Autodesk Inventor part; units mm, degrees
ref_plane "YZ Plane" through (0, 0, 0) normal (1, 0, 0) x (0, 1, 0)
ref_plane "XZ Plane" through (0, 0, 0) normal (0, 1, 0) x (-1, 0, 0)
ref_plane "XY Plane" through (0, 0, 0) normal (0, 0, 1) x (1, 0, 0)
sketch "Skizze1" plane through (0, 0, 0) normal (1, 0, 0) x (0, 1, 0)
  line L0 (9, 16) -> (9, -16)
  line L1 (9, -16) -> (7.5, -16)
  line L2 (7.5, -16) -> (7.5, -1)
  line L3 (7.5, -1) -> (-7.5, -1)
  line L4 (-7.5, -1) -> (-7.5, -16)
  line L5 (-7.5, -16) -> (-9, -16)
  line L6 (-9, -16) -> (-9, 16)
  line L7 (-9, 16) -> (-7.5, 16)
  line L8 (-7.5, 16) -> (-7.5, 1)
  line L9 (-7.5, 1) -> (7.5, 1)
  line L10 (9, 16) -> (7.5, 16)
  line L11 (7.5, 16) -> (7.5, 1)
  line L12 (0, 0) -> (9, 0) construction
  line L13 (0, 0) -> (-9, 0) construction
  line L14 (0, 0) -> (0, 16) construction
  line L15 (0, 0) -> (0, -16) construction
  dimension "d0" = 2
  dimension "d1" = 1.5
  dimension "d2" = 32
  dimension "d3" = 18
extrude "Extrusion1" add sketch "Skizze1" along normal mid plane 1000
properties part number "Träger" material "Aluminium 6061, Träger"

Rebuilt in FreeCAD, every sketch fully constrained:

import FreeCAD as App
import Part
import Sketcher
from FreeCAD import Vector
Q = App.Units.Quantity


def add_polygon(sketch, points):
    """Adds a closed chain of lines whose ends are joined by coincident constraints."""
    first, n = sketch.GeometryCount, len(points)
    for a, b in zip(points, points[1:] + points[:1]):
        sketch.addGeometry(Part.LineSegment(App.Vector(*a, 0), App.Vector(*b, 0)), False)
    for i in range(n):
        sketch.addConstraint(Sketcher.Constraint("Coincident", first + i, 2, first + (i + 1) % n, 1))

doc = App.newDocument("Part")
params = doc.addObject("Spreadsheet::Sheet", "Params")
for row, (alias, value) in enumerate([
    ("sketch1_height", "32 mm"),
    ("sketch1_width", "1.5 mm"),
    ("pad1_length", "1000 mm"),
], start=1):
    params.set(f"A{row}", alias)
    params.set(f"B{row}", "=" + value)
    params.setAlias(f"B{row}", alias)

body = doc.addObject("PartDesign::Body", "Body")

# Sketch on YZ plane
sketch1 = body.newObject("Sketcher::SketchObject", "Sketch")
sketch1.AttachmentSupport = (doc.getObject("YZ_Plane"), [""])
sketch1.MapMode = "FlatFace"
add_polygon(sketch1, [(9, -16), (9, 16), (7.5, 16), (7.5, 1), (-7.5, 1), (-7.5, 16), (-9, 16), (-9, -16), (-7.5, -16), (-7.5, -1), (7.5, -1), (7.5, -16)])  # lines 0-11
sketch1.addConstraint([
    Sketcher.Constraint("Vertical", 0),
    Sketcher.Constraint("Horizontal", 1),
    Sketcher.Constraint("Vertical", 2),
    Sketcher.Constraint("Horizontal", 3),
    Sketcher.Constraint("Vertical", 4),
    Sketcher.Constraint("Horizontal", 5),
    Sketcher.Constraint("Vertical", 6),
    Sketcher.Constraint("Horizontal", 7),
    Sketcher.Constraint("Vertical", 8),
    Sketcher.Constraint("Horizontal", 9),
    Sketcher.Constraint("Vertical", 10),
    Sketcher.Constraint("Horizontal", 11),
    Sketcher.Constraint("Symmetric", 0, 2, 6, 2, -1, 1),
    Sketcher.Constraint("Symmetric", 2, 2, 8, 2, -1, 1),
    Sketcher.Constraint("Symmetric", 4, 2, 10, 2, -1, 1),
    Sketcher.Constraint("Symmetric", 1, 2, 4, 2, -2),
    Sketcher.Constraint("Equal", 9, 2),
    Sketcher.Constraint("DistanceY", 0, 1, 0, 2, Q("32 mm")),
    Sketcher.Constraint("DistanceX", 1, 2, 1, 1, Q("1.5 mm")),
    Sketcher.Constraint("DistanceX", 5, 2, 0, 2, Q("18 mm")),
])
sketch1.setExpression("Constraints[29]", "Params.sketch1_height")
sketch1.setExpression("Constraints[30]", "Params.sketch1_width")
pad1 = body.newObject("PartDesign::Pad", "Pad")
pad1.Profile = sketch1
pad1.setExpression("Length", "Params.pad1_length")
pad1.Midplane = True

doc.recompute()
